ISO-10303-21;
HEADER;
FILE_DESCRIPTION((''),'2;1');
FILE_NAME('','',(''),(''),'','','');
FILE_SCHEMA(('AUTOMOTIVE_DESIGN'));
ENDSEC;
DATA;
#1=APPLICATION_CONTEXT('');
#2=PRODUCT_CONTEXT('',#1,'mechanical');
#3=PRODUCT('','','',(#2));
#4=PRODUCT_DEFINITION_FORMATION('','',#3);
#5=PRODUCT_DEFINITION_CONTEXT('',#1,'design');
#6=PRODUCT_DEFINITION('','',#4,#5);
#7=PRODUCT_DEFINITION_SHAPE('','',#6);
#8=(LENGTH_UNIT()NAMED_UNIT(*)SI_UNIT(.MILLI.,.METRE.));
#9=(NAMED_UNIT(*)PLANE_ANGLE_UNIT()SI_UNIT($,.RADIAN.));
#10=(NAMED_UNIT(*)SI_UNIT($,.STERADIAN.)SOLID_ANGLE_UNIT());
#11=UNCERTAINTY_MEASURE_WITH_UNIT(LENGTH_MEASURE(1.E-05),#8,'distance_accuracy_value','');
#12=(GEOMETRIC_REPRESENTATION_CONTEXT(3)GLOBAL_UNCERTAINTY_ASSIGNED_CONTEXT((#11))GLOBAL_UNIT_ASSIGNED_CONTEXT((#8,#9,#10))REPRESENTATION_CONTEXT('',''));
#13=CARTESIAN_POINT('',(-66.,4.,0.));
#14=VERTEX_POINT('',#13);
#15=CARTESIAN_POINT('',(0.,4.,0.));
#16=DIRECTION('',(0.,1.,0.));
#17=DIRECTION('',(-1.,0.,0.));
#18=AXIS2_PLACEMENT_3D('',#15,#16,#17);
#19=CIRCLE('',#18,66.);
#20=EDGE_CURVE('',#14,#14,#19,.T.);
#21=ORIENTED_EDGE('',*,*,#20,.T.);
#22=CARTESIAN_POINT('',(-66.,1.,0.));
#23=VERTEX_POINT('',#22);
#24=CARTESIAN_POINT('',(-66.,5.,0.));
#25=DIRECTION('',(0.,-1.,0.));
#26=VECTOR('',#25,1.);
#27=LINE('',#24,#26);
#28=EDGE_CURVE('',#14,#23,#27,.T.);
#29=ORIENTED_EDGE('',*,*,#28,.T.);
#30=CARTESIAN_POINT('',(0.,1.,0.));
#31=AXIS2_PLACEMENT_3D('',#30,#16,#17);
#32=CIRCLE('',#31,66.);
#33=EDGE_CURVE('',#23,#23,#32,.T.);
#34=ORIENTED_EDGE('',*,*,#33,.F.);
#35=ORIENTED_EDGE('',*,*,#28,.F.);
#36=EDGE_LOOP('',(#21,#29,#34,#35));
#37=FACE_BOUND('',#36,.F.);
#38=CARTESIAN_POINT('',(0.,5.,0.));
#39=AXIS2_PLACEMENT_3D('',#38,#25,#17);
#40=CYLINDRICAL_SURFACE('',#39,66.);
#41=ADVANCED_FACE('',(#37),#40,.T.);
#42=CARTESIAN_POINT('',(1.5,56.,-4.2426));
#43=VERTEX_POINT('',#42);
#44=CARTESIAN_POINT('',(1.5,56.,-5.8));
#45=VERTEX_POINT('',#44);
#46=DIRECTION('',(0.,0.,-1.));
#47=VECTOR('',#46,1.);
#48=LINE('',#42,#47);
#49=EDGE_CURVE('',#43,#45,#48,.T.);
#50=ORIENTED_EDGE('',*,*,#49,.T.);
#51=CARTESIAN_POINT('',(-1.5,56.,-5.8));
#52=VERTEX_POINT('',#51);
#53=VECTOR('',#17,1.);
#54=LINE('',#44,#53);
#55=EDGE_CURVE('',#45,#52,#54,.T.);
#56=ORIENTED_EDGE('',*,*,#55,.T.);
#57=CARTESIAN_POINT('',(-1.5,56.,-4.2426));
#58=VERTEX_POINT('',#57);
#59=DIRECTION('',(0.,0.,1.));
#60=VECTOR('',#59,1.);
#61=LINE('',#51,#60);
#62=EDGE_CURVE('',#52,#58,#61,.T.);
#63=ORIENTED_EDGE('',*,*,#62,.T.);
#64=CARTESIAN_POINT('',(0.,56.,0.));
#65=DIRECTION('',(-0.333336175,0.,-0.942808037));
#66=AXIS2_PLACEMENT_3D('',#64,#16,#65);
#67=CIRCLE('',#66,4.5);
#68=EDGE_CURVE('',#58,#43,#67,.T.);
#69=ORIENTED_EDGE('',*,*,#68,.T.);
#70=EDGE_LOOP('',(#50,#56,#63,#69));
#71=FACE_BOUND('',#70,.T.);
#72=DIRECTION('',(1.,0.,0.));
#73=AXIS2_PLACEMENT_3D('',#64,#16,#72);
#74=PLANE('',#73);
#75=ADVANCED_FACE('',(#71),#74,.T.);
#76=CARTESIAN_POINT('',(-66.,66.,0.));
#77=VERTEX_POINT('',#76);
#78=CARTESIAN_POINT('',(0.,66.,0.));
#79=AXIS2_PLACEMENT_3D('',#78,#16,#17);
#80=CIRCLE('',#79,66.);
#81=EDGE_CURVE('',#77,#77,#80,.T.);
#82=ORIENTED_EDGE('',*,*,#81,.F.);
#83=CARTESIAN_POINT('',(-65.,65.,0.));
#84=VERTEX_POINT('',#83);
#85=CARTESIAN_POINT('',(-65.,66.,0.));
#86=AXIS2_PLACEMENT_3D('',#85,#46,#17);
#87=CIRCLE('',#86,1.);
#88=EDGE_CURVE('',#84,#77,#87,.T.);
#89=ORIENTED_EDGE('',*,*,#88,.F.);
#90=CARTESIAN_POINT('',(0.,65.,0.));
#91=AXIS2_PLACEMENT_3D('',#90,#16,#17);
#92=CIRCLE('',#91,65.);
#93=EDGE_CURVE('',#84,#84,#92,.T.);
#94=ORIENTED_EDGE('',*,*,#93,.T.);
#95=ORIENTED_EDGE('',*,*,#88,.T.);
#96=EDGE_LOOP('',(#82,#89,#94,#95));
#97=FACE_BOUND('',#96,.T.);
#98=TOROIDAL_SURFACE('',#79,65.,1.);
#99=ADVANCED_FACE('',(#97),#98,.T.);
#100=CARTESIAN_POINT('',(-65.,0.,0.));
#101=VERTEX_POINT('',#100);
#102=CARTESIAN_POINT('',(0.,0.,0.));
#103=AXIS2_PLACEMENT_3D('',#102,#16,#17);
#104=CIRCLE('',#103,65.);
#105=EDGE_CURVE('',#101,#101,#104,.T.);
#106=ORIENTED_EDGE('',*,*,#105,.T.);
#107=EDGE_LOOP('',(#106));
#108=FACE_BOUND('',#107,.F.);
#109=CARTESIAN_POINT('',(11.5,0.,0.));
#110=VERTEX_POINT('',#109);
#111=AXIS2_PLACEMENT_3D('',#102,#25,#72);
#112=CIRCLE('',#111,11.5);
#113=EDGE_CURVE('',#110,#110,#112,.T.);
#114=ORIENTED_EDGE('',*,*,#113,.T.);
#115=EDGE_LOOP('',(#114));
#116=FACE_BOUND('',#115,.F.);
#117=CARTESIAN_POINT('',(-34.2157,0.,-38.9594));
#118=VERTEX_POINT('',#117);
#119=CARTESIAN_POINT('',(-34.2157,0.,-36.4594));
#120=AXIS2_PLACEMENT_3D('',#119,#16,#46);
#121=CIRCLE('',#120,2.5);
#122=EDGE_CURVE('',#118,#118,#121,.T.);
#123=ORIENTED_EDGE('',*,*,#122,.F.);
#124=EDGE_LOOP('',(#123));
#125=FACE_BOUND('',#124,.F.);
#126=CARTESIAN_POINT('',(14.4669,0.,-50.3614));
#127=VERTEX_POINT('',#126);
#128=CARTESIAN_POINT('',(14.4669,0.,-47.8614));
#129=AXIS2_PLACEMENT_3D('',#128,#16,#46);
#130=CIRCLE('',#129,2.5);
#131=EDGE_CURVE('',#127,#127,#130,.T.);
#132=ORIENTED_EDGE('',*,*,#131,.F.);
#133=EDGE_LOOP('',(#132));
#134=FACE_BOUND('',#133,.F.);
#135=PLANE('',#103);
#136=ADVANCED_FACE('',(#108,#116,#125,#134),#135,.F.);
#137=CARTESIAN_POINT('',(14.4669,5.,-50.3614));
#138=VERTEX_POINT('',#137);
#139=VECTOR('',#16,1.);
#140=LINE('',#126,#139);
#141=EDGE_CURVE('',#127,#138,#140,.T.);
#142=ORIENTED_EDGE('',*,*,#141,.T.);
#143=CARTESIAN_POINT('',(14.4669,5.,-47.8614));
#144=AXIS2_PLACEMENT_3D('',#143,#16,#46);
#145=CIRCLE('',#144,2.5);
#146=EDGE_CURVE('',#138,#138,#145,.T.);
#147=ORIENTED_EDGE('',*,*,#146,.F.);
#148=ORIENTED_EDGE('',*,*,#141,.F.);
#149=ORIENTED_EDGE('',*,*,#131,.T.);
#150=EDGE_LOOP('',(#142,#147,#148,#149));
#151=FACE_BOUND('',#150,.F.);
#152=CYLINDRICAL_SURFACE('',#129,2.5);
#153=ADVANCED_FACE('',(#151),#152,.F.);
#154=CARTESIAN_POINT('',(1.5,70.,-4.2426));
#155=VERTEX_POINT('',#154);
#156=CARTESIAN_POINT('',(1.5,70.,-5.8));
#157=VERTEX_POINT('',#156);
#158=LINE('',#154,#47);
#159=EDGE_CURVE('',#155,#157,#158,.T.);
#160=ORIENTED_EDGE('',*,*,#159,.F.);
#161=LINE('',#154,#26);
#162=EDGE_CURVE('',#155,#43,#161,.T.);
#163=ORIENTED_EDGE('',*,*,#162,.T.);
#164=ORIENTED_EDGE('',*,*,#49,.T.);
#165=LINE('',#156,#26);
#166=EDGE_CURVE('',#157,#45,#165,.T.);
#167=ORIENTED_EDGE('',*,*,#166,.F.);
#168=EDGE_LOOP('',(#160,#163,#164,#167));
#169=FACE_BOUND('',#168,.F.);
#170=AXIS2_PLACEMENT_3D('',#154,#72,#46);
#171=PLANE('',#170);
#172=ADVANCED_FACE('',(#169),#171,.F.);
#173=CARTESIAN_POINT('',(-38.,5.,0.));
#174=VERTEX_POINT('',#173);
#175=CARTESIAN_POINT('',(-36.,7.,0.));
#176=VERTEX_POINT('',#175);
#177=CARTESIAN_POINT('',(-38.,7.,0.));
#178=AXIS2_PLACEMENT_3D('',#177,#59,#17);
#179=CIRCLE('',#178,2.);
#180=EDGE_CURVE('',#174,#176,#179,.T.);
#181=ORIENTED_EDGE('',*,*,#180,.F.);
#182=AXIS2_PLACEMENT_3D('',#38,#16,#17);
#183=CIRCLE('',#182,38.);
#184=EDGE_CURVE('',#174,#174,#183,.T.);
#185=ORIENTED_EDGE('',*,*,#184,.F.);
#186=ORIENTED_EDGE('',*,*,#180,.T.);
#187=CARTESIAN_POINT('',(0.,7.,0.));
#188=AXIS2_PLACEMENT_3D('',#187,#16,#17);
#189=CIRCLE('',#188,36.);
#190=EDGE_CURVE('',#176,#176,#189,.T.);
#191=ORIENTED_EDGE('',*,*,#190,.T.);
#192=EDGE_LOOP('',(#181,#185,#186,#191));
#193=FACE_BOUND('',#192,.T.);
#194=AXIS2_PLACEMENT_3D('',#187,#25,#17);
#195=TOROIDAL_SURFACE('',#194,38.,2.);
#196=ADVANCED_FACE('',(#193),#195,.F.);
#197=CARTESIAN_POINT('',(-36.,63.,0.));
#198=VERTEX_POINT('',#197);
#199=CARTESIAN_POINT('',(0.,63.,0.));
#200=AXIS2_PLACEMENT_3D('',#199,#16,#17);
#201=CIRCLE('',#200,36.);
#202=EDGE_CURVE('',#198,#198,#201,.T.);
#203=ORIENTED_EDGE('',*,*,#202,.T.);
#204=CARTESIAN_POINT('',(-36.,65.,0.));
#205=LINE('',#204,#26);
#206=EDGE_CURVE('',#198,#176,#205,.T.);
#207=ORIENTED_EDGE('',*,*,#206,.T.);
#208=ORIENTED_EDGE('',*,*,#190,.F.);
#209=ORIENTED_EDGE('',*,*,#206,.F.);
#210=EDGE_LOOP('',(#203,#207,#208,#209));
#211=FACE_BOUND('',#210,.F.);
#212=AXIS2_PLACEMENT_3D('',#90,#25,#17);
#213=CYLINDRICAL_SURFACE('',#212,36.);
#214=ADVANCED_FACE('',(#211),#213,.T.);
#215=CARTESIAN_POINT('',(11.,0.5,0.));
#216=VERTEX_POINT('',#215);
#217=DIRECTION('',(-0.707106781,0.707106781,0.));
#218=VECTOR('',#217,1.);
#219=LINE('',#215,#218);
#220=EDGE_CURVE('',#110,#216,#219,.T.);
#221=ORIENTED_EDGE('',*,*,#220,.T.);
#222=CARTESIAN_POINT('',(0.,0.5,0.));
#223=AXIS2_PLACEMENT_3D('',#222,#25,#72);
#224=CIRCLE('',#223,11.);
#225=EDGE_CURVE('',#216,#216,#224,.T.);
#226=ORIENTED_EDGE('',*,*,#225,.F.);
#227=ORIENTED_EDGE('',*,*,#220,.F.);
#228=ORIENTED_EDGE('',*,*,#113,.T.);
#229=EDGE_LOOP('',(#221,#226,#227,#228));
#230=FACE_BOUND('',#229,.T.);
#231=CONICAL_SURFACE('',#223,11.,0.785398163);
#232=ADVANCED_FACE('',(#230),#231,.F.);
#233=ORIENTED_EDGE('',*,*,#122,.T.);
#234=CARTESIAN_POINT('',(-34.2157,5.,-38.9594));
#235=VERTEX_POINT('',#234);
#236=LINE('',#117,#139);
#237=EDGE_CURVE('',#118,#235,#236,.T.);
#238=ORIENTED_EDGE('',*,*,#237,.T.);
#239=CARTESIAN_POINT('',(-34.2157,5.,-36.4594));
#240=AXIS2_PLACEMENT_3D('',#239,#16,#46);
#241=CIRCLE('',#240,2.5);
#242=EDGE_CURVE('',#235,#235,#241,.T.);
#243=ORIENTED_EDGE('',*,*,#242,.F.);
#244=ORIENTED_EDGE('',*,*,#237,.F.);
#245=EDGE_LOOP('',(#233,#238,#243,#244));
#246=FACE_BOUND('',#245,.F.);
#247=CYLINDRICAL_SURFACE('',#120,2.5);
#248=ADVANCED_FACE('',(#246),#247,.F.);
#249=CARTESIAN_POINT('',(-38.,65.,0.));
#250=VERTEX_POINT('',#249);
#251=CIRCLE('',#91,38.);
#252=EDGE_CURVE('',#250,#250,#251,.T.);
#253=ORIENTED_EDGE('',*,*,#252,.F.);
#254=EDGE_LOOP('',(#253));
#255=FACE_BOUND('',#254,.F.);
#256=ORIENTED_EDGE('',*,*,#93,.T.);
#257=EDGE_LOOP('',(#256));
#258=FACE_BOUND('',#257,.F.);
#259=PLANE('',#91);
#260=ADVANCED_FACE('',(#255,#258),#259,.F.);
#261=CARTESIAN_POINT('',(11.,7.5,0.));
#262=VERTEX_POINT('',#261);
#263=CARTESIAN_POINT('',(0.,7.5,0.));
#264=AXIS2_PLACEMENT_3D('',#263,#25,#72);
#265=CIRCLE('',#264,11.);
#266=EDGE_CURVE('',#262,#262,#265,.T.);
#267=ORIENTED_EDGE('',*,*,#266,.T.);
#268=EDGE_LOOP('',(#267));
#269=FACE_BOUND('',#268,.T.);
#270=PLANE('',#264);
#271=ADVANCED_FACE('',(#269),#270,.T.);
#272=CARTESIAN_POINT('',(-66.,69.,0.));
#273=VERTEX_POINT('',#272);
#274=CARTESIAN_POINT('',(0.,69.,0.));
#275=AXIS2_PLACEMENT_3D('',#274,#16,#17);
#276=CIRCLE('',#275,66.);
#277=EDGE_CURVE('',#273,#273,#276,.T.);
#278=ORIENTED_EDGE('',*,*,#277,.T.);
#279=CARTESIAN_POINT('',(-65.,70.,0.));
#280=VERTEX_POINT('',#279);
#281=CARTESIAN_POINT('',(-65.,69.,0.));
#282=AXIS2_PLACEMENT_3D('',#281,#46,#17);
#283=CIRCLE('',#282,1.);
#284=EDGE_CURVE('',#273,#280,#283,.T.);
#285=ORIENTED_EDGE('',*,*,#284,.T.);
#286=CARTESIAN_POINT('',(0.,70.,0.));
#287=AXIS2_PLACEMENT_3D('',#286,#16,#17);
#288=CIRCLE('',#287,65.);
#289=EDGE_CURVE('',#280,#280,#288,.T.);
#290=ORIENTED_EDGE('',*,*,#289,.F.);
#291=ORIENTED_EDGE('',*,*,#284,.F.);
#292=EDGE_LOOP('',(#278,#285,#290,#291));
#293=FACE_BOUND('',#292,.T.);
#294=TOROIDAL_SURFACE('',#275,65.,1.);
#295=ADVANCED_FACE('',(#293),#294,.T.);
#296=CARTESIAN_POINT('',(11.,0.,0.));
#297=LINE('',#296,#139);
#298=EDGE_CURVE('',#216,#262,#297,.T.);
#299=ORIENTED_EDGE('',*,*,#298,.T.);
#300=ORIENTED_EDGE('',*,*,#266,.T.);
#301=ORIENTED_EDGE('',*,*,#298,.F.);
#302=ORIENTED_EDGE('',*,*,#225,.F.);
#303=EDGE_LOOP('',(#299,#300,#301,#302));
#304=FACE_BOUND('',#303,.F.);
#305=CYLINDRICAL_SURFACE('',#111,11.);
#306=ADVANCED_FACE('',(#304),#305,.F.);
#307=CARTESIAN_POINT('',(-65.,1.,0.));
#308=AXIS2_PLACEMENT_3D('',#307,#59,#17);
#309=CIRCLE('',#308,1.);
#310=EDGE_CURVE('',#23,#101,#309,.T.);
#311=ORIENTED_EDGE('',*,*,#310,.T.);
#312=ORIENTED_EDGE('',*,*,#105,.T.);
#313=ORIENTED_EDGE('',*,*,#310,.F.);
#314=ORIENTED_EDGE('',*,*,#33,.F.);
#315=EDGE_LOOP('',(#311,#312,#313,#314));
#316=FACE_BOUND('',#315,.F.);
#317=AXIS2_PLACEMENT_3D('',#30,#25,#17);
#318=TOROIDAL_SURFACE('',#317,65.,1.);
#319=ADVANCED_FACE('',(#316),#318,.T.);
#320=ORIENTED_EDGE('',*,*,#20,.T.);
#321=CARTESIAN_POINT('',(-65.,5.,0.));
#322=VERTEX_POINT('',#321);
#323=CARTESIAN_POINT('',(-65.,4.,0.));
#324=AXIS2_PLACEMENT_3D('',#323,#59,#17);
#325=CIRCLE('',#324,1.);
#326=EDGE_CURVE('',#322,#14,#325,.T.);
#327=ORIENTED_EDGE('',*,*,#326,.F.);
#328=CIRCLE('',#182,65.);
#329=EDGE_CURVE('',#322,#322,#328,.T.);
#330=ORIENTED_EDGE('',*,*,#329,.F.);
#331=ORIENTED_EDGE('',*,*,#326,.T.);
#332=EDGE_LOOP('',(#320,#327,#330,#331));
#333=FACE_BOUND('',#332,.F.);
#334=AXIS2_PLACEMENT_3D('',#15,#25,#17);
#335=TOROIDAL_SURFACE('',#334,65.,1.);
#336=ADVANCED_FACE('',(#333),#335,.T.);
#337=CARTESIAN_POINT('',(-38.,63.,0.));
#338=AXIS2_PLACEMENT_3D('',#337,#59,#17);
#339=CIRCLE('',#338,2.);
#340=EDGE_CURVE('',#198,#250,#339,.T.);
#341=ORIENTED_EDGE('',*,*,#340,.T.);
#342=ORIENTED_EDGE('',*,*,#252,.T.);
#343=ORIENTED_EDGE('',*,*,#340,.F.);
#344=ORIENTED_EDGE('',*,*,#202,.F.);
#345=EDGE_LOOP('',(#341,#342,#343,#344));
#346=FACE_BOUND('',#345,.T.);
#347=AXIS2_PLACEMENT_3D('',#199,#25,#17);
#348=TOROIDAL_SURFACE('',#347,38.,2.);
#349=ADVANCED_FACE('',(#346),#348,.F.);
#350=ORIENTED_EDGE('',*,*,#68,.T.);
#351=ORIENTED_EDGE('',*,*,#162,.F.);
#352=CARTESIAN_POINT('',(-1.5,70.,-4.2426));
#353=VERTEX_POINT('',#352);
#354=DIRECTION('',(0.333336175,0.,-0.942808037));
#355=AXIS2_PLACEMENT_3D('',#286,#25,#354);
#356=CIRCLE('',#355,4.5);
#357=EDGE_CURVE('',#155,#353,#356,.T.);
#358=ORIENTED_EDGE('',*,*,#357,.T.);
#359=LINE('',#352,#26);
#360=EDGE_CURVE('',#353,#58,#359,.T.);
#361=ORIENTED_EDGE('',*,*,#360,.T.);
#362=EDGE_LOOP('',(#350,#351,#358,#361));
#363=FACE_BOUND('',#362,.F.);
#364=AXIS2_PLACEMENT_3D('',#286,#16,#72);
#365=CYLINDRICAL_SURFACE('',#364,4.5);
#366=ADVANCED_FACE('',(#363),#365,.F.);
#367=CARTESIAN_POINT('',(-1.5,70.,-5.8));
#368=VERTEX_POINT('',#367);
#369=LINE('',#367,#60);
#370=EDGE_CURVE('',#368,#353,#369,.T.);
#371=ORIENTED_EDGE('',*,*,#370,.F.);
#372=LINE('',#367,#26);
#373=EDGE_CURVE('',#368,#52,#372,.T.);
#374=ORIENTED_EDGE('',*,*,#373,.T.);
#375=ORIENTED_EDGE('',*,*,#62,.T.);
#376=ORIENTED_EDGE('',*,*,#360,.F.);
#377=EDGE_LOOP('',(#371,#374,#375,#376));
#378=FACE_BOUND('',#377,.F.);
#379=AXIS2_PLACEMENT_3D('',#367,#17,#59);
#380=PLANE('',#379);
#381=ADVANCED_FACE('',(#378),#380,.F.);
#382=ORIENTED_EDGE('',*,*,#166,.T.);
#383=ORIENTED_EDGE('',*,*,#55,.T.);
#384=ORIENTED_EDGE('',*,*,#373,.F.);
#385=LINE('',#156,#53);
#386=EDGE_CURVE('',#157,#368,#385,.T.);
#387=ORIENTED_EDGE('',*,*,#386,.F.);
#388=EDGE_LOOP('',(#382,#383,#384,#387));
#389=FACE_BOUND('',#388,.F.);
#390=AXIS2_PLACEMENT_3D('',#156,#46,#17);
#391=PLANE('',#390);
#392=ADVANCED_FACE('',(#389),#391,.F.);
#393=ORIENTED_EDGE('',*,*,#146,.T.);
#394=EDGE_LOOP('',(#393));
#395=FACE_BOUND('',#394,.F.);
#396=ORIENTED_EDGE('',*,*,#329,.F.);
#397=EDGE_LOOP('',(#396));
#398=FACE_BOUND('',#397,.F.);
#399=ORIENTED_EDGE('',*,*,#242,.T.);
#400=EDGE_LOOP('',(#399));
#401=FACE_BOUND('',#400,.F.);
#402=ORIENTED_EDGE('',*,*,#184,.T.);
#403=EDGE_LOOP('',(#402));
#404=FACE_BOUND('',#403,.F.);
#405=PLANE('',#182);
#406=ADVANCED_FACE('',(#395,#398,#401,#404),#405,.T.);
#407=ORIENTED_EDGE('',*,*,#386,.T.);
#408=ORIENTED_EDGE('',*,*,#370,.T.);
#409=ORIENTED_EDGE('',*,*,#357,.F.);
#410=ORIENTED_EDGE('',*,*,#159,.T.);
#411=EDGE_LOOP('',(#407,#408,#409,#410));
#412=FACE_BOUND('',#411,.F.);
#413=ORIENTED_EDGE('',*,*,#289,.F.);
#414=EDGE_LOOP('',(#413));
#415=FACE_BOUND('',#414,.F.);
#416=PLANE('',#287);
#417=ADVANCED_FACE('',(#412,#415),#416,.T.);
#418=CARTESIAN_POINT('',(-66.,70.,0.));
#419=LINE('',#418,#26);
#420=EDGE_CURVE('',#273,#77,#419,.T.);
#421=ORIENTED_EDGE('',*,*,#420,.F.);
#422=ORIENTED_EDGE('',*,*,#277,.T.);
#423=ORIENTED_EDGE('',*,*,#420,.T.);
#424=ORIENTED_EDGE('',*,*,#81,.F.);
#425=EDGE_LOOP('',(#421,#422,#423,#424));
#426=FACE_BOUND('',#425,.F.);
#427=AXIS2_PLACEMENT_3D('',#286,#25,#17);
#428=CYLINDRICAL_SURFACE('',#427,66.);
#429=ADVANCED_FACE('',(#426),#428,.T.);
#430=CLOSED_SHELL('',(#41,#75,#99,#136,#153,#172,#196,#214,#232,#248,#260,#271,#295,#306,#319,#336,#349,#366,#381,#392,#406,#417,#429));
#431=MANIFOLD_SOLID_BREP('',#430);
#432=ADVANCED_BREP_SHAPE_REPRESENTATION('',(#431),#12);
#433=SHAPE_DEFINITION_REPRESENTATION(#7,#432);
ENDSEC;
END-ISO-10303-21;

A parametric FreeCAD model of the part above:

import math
import FreeCAD as App
import Part
import Sketcher
Q = App.Units.Quantity


def edges_at(feature, points):
    """Names of the edges that pass closest to the given points."""
    edges = feature.Shape.Edges
    near = lambda p: min(range(len(edges)), key=lambda i: edges[i].distToShape(Part.Vertex(*p))[0])
    return sorted({f"Edge{near(p) + 1}" for p in points})


def add_polygon(sketch, points):
    """Adds a closed chain of lines whose ends are joined by coincident constraints."""
    first, n = sketch.GeometryCount, len(points)
    for a, b in zip(points, points[1:] + points[:1]):
        sketch.addGeometry(Part.LineSegment(App.Vector(*a, 0), App.Vector(*b, 0)), False)
    for i in range(n):
        sketch.addConstraint(Sketcher.Constraint("Coincident", first + i, 2, first + (i + 1) % n, 1))

doc = App.newDocument("Part")
body = doc.addObject("PartDesign::Body", "Body")

sketch1 = body.newObject("Sketcher::SketchObject", "Sketch")
sketch1.AttachmentSupport = (doc.getObject("XY_Plane"), [""])
sketch1.MapMode = "FlatFace"
add_polygon(sketch1, [(0, 0), (0, 70), (-66, 70), (-66, 65), (-36, 65), (-36, 5), (-66, 5), (-66, 0)])
sketch1.addConstraint([
    Sketcher.Constraint("Vertical", 0),
    Sketcher.Constraint("Horizontal", 1),
    Sketcher.Constraint("Vertical", 2),
    Sketcher.Constraint("Horizontal", 3),
    Sketcher.Constraint("Vertical", 4),
    Sketcher.Constraint("Horizontal", 5),
    Sketcher.Constraint("Vertical", 6),
    Sketcher.Constraint("Horizontal", 7),
    Sketcher.Constraint("Coincident", 7, 2, -1, 1),
    Sketcher.Constraint("Vertical", 2, 2, 5, 2),
    Sketcher.Constraint("Equal", 2, 6),
    Sketcher.Constraint("DistanceX", 1, 2, 1, 1, Q("66 mm")),
    Sketcher.Constraint("DistanceY", 2, 2, 2, 1, Q("5 mm")),
    Sketcher.Constraint("DistanceY", 4, 2, 4, 1, Q("60 mm")),
    Sketcher.Constraint("DistanceX", 3, 2, -1, 1, Q("36 mm")),
])
revolution = body.newObject("PartDesign::Revolution", "Revolution")
revolution.Profile = sketch1
revolution.ReferenceAxis = (sketch1, ["V_Axis"])
revolution.Angle = 360
doc.recompute()

fillet = body.newObject("PartDesign::Fillet", "Fillet")
fillet.Base = (revolution, edges_at(revolution, [(36, 5, 0), (36, 65, 0)]))
fillet.Radius = 2
doc.recompute()

fillet2 = body.newObject("PartDesign::Fillet", "Fillet001")
fillet2.Base = (fillet, edges_at(fillet, [
    (66, 70, 0),
    (66, 65, 0),
    (66, 5, 0),
    (66, 0, 0),
]))
fillet2.Radius = 1

sketch2 = body.newObject("Sketcher::SketchObject", "Sketch001")
sketch2.AttachmentSupport = (doc.getObject("XZ_Plane"), [""])
sketch2.MapMode = "FlatFace"
sketch2.AttachmentOffset = App.Placement(App.Vector(0, 0, -70), App.Rotation())
sketch2.addGeometry([
    Part.ArcOfCircle(Part.Circle(App.Vector(0, 0, 0), App.Vector(0, 0, 1), 4.5), math.radians(-71), math.radians(251)),
    Part.LineSegment(App.Vector(1.5, -4.2, 0), App.Vector(1.5, -5.8, 0)),
    Part.LineSegment(App.Vector(1.5, -5.8, 0), App.Vector(-1.5, -5.8, 0)),
    Part.LineSegment(App.Vector(-1.5, -5.8, 0), App.Vector(-1.5, -4.2, 0)),
], False)
sketch2.addConstraint([
    Sketcher.Constraint("Coincident", 0, 1, 1, 1),
    Sketcher.Constraint("Coincident", 1, 2, 2, 1),
    Sketcher.Constraint("Coincident", 2, 2, 3, 1),
    Sketcher.Constraint("Coincident", 3, 2, 0, 2),
    Sketcher.Constraint("Vertical", 1),
    Sketcher.Constraint("Horizontal", 2),
    Sketcher.Constraint("Vertical", 3),
    Sketcher.Constraint("Coincident", 0, 3, -1, 1),
    Sketcher.Constraint("Horizontal", 0, 1, 3, 2),
    Sketcher.Constraint("Radius", 0, Q("4.5 mm")),
    Sketcher.Constraint("DistanceX", 2, 2, 2, 1, Q("3 mm")),
    Sketcher.Constraint("DistanceY", 1, 2, -1, 1, Q("5.8 mm")),
])
pocket1 = body.newObject("PartDesign::Pocket", "Pocket")
pocket1.Profile = sketch2
pocket1.Length = 14
pocket1.Reversed = True

sketch3 = body.newObject("Sketcher::SketchObject", "Sketch002")
sketch3.AttachmentSupport = (doc.getObject("XZ_Plane"), [""])
sketch3.MapMode = "FlatFace"
sketch3.addGeometry([
    Part.Circle(App.Vector(14.5, -47.9, 0), App.Vector(0, 0, 1), 2.5),
    Part.Circle(App.Vector(-34.2, -36.5, 0), App.Vector(0, 0, 1), 2.5),
], False)
sketch3.addConstraint([
    Sketcher.Constraint("Equal", 0, 1),
    Sketcher.Constraint("Diameter", 0, Q("5 mm")),
    Sketcher.Constraint("DistanceX", -1, 1, 0, 3, Q("14.467 mm")),
    Sketcher.Constraint("DistanceY", 0, 3, 1, 3, Q("11.402 mm")),
    Sketcher.Constraint("DistanceY", 0, 3, -1, 1, Q("47.8614 mm")),
    Sketcher.Constraint("DistanceX", 1, 3, -1, 1, Q("34.2157 mm")),
])
doc.recompute()
hole = body.newObject("PartDesign::Hole", "Hole")
hole.Profile = sketch3
hole.ThreadType = "None"
hole.Diameter = 5
hole.DepthType = "Dimension"
hole.Depth = 8
hole.DrillPoint = "Flat"

sketch4 = body.newObject("Sketcher::SketchObject", "Sketch003")
sketch4.AttachmentSupport = (doc.getObject("XZ_Plane"), [""])
sketch4.MapMode = "FlatFace"
sketch4.addGeometry(Part.Circle(App.Vector(0, 0, 0), App.Vector(0, 0, 1), 11), False)
sketch4.addConstraint([
    Sketcher.Constraint("Coincident", 0, 3, -1, 1),
    Sketcher.Constraint("Diameter", 0, Q("22 mm")),
])
pocket2 = body.newObject("PartDesign::Pocket", "Pocket001")
pocket2.Profile = sketch4
pocket2.Length = 7.5
doc.recompute()

chamfer = body.newObject("PartDesign::Chamfer", "Chamfer")
chamfer.Base = (pocket2, edges_at(pocket2, [(-11, 0, 0)]))
chamfer.Size = 0.5

doc.recompute()
